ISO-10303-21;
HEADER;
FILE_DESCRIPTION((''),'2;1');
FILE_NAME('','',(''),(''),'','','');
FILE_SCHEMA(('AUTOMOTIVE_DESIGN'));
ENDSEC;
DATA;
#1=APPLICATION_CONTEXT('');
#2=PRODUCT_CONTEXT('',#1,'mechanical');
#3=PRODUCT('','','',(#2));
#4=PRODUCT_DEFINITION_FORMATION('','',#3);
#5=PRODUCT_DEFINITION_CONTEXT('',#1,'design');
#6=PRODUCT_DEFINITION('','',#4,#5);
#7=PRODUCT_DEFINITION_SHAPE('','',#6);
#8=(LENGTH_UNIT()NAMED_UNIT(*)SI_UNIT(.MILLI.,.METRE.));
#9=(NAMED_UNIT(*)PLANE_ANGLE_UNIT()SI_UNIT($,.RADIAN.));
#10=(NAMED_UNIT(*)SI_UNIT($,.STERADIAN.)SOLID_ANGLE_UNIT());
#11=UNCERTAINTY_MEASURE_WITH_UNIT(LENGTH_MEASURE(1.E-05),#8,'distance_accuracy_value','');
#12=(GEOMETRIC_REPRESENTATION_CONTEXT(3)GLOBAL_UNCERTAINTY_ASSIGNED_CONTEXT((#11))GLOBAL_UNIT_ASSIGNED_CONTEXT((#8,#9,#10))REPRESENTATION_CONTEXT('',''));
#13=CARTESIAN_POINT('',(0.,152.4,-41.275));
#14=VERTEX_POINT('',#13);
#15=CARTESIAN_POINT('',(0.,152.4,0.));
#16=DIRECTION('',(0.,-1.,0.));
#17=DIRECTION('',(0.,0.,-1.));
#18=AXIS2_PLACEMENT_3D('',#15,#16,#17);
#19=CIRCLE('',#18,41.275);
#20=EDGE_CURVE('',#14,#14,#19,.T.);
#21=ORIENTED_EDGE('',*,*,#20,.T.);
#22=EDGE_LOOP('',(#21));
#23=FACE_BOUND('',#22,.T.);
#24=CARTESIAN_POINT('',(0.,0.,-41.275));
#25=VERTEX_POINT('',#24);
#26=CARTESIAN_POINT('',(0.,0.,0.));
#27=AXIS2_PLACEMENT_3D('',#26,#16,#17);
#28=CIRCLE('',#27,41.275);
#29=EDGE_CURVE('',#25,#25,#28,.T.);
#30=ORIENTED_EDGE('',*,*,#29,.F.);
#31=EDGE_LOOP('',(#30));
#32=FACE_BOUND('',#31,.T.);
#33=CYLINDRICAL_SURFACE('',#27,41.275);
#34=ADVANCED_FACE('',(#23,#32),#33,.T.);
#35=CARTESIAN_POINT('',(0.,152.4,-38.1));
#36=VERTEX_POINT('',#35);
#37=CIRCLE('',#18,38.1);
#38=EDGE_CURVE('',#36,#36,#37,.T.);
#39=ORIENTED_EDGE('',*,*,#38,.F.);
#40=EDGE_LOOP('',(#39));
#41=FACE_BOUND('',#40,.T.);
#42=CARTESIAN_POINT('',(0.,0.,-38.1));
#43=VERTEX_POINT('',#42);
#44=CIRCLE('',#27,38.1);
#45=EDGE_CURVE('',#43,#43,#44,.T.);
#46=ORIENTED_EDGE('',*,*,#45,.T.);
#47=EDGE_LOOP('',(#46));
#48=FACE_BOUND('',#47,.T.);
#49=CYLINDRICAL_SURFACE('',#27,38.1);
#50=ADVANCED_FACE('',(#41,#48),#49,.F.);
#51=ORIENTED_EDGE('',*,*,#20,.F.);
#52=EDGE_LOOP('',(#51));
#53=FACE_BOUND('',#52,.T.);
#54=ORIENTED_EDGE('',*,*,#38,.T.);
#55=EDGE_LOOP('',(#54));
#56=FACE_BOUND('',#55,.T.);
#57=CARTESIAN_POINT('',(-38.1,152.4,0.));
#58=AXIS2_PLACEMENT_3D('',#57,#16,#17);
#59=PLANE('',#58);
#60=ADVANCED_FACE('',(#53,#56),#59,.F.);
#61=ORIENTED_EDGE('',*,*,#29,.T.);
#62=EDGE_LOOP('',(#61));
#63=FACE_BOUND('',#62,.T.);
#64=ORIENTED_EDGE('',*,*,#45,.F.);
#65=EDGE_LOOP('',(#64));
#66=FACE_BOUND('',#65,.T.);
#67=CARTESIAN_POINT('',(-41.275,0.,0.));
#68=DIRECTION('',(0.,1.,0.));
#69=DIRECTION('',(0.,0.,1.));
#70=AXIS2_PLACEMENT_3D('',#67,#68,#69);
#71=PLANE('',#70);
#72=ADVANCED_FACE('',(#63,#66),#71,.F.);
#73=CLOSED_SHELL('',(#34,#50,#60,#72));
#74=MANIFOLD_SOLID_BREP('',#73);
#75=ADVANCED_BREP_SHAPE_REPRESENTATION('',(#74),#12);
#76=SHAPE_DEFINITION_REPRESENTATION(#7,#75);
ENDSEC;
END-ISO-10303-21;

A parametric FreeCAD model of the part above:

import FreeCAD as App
import Part
import Sketcher
Q = App.Units.Quantity


def add_polygon(sketch, points):
    """Adds a closed chain of lines whose ends are joined by coincident constraints."""
    first, n = sketch.GeometryCount, len(points)
    for a, b in zip(points, points[1:] + points[:1]):
        sketch.addGeometry(Part.LineSegment(App.Vector(*a, 0), App.Vector(*b, 0)), False)
    for i in range(n):
        sketch.addConstraint(Sketcher.Constraint("Coincident", first + i, 2, first + (i + 1) % n, 1))

doc = App.newDocument("Part")
body = doc.addObject("PartDesign::Body", "Body")

# Sketch on XY plane
sketch1 = body.newObject("Sketcher::SketchObject", "Sketch")
sketch1.AttachmentSupport = (doc.getObject("XY_Plane"), [""])
sketch1.MapMode = "FlatFace"
add_polygon(sketch1, [(-41.3, 152.4), (-41.3, 0), (-38.1, 0), (-38.1, 152.4)])  # lines 0-3
sketch1.addConstraint([
    Sketcher.Constraint("Vertical", 0),
    Sketcher.Constraint("Horizontal", 1),
    Sketcher.Constraint("Vertical", 2),
    Sketcher.Constraint("Horizontal", 3),
    Sketcher.Constraint("PointOnObject", 0, 2, -1),
    Sketcher.Constraint("DistanceY", 0, 2, 0, 1, Q("6 in")),
    Sketcher.Constraint("DistanceX", 1, 2, -1, 1, Q("1.5 in")),
    Sketcher.Constraint("DistanceX", 1, 1, 1, 2, Q("0.125 in")),
])
revolution = body.newObject("PartDesign::Revolution", "Revolution")
revolution.Profile = sketch1
revolution.ReferenceAxis = (sketch1, ["V_Axis"])
revolution.Angle = 360

doc.recompute()
